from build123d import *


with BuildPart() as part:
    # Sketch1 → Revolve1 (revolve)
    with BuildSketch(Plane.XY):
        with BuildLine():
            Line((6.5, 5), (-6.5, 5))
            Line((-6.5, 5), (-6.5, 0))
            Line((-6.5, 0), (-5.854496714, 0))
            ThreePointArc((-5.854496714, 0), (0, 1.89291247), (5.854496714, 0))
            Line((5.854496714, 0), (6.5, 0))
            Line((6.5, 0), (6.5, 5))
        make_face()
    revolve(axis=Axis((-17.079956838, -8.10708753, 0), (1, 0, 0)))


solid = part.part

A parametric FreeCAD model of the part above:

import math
import FreeCAD as App
import Part
import Sketcher
Q = App.Units.Quantity

doc = App.newDocument("Part")
params = doc.addObject("Spreadsheet::Sheet", "Params")
for row, (alias, value) in enumerate([
    ("sketch1_radius", "10 mm"),
    ("sketch1_width", "13 mm"),
    ("sketch1_height", "5 mm"),
    ("revolution_angle", "360 deg"),
], start=1):
    params.set(f"A{row}", alias)
    params.set(f"B{row}", "=" + value)
    params.setAlias(f"B{row}", alias)

body = doc.addObject("PartDesign::Body", "Body")

sketch1 = body.newObject("Sketcher::SketchObject", "Sketch")
sketch1.AttachmentSupport = (doc.getObject("XY_Plane"), [""])
sketch1.MapMode = "FlatFace"
sketch1.addGeometry([
    Part.LineSegment(App.Vector(6.5, 5, 0), App.Vector(-6.5, 5, 0)),
    Part.LineSegment(App.Vector(-6.5, 5, 0), App.Vector(-6.5, 0, 0)),
    Part.LineSegment(App.Vector(-6.5, 0, 0), App.Vector(-5.9, 0, 0)),
    Part.ArcOfCircle(Part.Circle(App.Vector(0, -8.1, 0), App.Vector(0, 0, 1), 10), math.radians(54), math.radians(126)),
    Part.LineSegment(App.Vector(5.9, 0, 0), App.Vector(6.5, 0, 0)),
    Part.LineSegment(App.Vector(6.5, 0, 0), App.Vector(6.5, 5, 0)),
], False)
sketch1.addGeometry(Part.LineSegment(App.Vector(-6.5, -8.1, 0), App.Vector(6.5, -8.1, 0)), True)
sketch1.addConstraint([
    Sketcher.Constraint("Coincident", 0, 2, 1, 1),
    Sketcher.Constraint("Coincident", 1, 2, 2, 1),
    Sketcher.Constraint("Coincident", 2, 2, 3, 2),
    Sketcher.Constraint("Coincident", 3, 1, 4, 1),
    Sketcher.Constraint("Coincident", 4, 2, 5, 1),
    Sketcher.Constraint("Coincident", 5, 2, 0, 1),
    Sketcher.Constraint("Horizontal", 0),
    Sketcher.Constraint("Vertical", 1),
    Sketcher.Constraint("Horizontal", 2),
    Sketcher.Constraint("Horizontal", 4),
    Sketcher.Constraint("Vertical", 5),
    Sketcher.Constraint("Horizontal", 6),
    Sketcher.Constraint("Symmetric", 2, 2, 3, 1, -1, 1),
    Sketcher.Constraint("Symmetric", 1, 2, 4, 2, -2),
    Sketcher.Constraint("Horizontal", 3, 3, 6, 1),
    Sketcher.Constraint("Vertical", 1, 2, 6, 1),
    Sketcher.Constraint("Vertical", 5, 2, 6, 2),
    Sketcher.Constraint("Radius", 3, Q("10 mm")),
    Sketcher.Constraint("DistanceX", 0, 2, 0, 1, Q("13 mm")),
    Sketcher.Constraint("DistanceY", 1, 2, 1, 1, Q("5 mm")),
    Sketcher.Constraint("DistanceX", 2, 1, 2, 2, Q("0.645503 mm")),
])
sketch1.setExpression("Constraints[17]", "Params.sketch1_radius")
sketch1.setExpression("Constraints[18]", "Params.sketch1_width")
sketch1.setExpression("Constraints[19]", "Params.sketch1_height")
revolution = body.newObject("PartDesign::Revolution", "Revolution")
revolution.Profile = sketch1
revolution.ReferenceAxis = (sketch1, ["Axis0"])
revolution.setExpression("Angle", "Params.revolution_angle")

doc.recompute()
